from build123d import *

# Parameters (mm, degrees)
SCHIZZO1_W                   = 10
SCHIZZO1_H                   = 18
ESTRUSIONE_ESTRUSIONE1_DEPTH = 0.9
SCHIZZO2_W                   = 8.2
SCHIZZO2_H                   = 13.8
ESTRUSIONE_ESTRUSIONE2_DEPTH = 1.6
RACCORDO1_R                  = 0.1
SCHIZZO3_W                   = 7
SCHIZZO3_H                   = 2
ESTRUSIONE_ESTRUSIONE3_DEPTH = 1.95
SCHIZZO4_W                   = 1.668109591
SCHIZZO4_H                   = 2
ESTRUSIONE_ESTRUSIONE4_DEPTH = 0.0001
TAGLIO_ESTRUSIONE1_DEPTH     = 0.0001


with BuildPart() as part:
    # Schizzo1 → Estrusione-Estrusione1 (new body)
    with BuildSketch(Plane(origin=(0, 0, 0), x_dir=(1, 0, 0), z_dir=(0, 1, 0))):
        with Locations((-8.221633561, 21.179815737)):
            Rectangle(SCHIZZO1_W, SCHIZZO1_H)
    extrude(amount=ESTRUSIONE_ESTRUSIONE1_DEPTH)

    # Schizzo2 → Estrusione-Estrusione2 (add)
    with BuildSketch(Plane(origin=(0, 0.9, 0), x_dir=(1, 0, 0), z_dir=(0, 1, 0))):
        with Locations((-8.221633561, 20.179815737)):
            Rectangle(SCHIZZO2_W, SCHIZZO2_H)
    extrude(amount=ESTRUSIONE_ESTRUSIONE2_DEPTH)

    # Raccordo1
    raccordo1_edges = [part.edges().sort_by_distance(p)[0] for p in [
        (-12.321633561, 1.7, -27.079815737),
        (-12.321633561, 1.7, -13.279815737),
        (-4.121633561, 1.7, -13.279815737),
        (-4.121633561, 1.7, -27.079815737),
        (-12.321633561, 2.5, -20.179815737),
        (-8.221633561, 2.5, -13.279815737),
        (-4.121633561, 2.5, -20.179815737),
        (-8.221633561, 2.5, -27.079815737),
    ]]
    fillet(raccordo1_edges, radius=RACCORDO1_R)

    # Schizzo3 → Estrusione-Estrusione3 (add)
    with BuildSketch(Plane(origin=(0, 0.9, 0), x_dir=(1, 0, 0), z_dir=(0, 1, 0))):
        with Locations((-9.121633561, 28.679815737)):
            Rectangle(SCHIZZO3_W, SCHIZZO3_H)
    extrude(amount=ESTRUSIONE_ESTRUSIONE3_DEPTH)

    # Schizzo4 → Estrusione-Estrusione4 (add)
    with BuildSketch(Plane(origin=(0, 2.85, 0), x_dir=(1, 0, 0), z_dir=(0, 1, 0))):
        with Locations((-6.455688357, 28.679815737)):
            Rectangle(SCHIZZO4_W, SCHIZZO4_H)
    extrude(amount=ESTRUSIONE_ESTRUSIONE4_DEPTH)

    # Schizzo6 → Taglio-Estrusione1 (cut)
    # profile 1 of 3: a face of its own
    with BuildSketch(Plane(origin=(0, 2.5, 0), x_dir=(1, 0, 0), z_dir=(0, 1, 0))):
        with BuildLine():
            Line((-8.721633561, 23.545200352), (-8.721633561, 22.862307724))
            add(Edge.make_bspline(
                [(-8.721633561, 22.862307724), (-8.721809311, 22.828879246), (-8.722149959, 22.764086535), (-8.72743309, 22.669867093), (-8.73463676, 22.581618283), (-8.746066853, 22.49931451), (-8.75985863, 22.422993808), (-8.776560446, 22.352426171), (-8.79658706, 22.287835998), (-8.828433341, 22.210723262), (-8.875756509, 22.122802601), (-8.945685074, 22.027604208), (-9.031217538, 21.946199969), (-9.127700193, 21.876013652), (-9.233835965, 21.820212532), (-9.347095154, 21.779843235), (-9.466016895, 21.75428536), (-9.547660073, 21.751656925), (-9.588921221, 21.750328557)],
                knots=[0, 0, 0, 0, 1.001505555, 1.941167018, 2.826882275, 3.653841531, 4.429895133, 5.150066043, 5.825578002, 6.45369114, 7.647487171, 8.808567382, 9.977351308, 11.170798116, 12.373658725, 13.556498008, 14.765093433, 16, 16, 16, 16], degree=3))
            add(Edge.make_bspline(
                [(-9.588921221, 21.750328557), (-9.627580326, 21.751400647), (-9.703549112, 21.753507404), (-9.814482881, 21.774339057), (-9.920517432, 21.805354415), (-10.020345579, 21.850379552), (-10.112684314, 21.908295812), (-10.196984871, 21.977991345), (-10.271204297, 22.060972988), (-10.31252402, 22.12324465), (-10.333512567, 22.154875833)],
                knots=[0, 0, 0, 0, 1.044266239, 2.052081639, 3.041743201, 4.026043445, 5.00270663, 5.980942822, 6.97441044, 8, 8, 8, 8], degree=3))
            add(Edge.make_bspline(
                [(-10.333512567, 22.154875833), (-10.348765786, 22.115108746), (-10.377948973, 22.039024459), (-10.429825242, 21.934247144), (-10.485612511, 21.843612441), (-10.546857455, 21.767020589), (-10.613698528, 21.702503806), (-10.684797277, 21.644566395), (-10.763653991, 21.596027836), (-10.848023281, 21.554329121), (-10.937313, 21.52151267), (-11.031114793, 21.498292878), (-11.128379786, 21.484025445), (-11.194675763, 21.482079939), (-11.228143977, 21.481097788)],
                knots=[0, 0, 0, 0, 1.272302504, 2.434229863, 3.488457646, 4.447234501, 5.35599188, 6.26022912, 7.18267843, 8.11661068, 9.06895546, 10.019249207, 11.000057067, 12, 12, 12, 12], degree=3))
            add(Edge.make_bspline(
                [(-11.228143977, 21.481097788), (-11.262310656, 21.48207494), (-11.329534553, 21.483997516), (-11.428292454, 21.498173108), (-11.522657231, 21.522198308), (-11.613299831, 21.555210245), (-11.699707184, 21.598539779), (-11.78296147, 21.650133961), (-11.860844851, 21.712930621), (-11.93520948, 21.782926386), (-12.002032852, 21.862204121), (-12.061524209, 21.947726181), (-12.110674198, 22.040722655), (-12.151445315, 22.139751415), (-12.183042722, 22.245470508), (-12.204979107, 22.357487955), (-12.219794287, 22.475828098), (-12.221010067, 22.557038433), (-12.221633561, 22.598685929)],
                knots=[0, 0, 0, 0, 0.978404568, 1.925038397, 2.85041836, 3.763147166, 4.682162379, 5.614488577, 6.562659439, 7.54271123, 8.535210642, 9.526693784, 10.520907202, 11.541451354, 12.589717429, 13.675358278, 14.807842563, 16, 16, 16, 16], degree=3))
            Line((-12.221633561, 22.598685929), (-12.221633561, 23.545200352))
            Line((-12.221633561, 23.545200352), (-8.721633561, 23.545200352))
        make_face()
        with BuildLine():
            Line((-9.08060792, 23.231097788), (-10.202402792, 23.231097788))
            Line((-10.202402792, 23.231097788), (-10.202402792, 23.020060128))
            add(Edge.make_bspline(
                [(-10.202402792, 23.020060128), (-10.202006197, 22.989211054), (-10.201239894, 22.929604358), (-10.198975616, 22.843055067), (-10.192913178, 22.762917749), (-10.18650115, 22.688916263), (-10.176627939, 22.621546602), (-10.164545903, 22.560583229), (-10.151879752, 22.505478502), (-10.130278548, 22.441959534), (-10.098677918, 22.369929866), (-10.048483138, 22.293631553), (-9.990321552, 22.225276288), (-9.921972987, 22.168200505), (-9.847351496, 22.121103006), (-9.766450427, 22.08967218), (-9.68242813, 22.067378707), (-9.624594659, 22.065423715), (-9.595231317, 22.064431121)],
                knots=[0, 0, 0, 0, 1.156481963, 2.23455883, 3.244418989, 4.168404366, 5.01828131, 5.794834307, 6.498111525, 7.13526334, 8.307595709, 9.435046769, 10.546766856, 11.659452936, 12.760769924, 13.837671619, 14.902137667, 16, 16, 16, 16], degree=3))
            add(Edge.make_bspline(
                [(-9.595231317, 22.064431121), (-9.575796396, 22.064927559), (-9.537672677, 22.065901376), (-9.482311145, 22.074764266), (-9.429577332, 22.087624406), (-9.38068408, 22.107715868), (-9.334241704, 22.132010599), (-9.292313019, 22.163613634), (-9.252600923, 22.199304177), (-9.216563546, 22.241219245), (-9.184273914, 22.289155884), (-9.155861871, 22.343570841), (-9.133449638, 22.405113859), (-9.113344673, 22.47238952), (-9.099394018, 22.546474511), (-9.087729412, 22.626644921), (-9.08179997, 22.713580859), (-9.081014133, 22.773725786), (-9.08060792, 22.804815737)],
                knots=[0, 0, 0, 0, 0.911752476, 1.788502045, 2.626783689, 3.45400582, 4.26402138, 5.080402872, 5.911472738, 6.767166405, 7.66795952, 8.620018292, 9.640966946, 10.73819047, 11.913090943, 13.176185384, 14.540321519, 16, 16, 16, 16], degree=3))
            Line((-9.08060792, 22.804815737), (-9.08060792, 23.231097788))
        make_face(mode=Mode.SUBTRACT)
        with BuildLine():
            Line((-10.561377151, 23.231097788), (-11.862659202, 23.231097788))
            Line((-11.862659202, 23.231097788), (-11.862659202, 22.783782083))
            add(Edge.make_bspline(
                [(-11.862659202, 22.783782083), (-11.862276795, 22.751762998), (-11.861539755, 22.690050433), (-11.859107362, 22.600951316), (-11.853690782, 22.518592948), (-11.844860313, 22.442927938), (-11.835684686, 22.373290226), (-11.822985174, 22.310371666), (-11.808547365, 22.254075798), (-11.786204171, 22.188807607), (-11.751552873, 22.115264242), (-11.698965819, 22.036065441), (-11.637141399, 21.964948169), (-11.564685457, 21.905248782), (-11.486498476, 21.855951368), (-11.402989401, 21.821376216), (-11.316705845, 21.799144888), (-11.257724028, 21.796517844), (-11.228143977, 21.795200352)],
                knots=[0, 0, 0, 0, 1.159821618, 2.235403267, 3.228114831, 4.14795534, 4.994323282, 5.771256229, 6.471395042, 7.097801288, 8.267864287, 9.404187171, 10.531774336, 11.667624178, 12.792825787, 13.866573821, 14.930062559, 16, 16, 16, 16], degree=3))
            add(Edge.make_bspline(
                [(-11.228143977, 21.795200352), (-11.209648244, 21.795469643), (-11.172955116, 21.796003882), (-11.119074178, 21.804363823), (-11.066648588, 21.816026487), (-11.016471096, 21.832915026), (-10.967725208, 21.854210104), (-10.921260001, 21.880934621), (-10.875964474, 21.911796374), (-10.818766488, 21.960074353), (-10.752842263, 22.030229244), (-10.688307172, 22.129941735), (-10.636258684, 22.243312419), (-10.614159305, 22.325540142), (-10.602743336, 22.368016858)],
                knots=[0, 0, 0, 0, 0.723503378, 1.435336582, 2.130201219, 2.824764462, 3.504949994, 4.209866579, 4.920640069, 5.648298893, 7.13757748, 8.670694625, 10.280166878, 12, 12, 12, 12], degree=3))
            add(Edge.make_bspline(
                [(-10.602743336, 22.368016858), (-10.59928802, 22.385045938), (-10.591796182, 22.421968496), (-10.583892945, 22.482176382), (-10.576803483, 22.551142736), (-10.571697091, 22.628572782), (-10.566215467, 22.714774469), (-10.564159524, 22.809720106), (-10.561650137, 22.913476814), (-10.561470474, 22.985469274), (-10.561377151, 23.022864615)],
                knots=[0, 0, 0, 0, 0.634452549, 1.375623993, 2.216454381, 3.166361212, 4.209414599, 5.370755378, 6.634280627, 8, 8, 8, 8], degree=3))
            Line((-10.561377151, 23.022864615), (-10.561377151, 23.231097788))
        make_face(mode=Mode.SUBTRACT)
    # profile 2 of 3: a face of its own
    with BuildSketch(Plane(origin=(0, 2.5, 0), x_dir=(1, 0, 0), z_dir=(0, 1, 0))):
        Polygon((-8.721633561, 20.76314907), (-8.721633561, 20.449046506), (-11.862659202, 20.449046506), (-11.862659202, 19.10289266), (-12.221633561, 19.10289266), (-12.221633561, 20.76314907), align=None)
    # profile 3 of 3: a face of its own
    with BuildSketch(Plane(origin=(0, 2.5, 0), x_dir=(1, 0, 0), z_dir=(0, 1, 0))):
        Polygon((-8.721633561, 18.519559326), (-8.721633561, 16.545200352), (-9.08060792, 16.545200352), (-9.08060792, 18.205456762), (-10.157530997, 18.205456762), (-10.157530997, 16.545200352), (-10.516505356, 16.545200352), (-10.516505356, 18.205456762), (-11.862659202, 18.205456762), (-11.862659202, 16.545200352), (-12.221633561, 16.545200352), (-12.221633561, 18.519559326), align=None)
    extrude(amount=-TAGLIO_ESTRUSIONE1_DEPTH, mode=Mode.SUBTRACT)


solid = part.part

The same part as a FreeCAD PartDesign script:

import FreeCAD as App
import Part
import Sketcher

V = App.Vector
Q = App.Units.Quantity


def edges_at(feature, points):
    """Names of the edges that pass closest to the given points."""
    edges = feature.Shape.Edges
    near = lambda p: min(range(len(edges)), key=lambda i: edges[i].distToShape(Part.Vertex(*p))[0])
    return sorted({f"Edge{near(p) + 1}" for p in points})

doc = App.newDocument("Part")
body = doc.addObject("PartDesign::Body", "Body")

# Sketch on XZ plane
sketch1 = doc.addObject("Sketcher::SketchObject", "Sketch")
body.addObject(sketch1)
sketch1.AttachmentSupport = (doc.XZ_Plane, [""])
sketch1.MapMode = "FlatFace"
sketch1.addGeometry([
    Part.LineSegment(V(-13, -30, 0), V(-13, -12, 0)),
    Part.LineSegment(V(-13, -12, 0), V(-3, -12, 0)),
    Part.LineSegment(V(-3, -12, 0), V(-3, -30, 0)),
    Part.LineSegment(V(-3, -30, 0), V(-13, -30, 0)),
], False)
sketch1.addConstraint([
    Sketcher.Constraint("Coincident", 0, 2, 1, 1),
    Sketcher.Constraint("Coincident", 1, 2, 2, 1),
    Sketcher.Constraint("Coincident", 2, 2, 3, 1),
    Sketcher.Constraint("Coincident", 3, 2, 0, 1),
    Sketcher.Constraint("Vertical", 0),
    Sketcher.Constraint("Horizontal", 1),
    Sketcher.Constraint("Vertical", 2),
    Sketcher.Constraint("Horizontal", 3),
    Sketcher.Constraint("DistanceX", 1, 1, 1, 2, Q("10 mm")),
    Sketcher.Constraint("DistanceY", 0, 1, 0, 2, Q("18 mm")),
    Sketcher.Constraint("DistanceX", 0, 2, -1, 1, Q("13.221634 mm")),
    Sketcher.Constraint("DistanceY", 0, 2, -1, 1, Q("12.179816 mm")),
])
pad1 = doc.addObject("PartDesign::Pad", "Pad")
body.addObject(pad1)
pad1.Profile = sketch1
pad1.Length = 0.9
pad1.Reversed = True

# Sketch on XZ plane
sketch2 = doc.addObject("Sketcher::SketchObject", "Sketch001")
body.addObject(sketch2)
sketch2.AttachmentSupport = (doc.XZ_Plane, [""])
sketch2.MapMode = "FlatFace"
sketch2.AttachmentOffset = App.Placement(V(0, 0, -0.9), App.Rotation())
sketch2.addGeometry([
    Part.LineSegment(V(-12, -27, 0), V(-12, -13, 0)),
    Part.LineSegment(V(-12, -13, 0), V(-4, -13, 0)),
    Part.LineSegment(V(-4, -13, 0), V(-4, -27, 0)),
    Part.LineSegment(V(-4, -27, 0), V(-12, -27, 0)),
], False)
sketch2.addConstraint([
    Sketcher.Constraint("Coincident", 0, 2, 1, 1),
    Sketcher.Constraint("Coincident", 1, 2, 2, 1),
    Sketcher.Constraint("Coincident", 2, 2, 3, 1),
    Sketcher.Constraint("Coincident", 3, 2, 0, 1),
    Sketcher.Constraint("Vertical", 0),
    Sketcher.Constraint("Horizontal", 1),
    Sketcher.Constraint("Vertical", 2),
    Sketcher.Constraint("Horizontal", 3),
    Sketcher.Constraint("DistanceX", 1, 1, 1, 2, Q("8.2 mm")),
    Sketcher.Constraint("DistanceY", 0, 1, 0, 2, Q("13.8 mm")),
    Sketcher.Constraint("DistanceX", 0, 2, -1, 1, Q("12.321634 mm")),
    Sketcher.Constraint("DistanceY", 0, 2, -1, 1, Q("13.279816 mm")),
])
pad2 = doc.addObject("PartDesign::Pad", "Pad001")
body.addObject(pad2)
pad2.Profile = sketch2
pad2.Length = 1.6
pad2.Reversed = True
doc.recompute()

fillet = doc.addObject("PartDesign::Fillet", "Fillet")
body.addObject(fillet)
fillet.Base = (pad2, edges_at(pad2, [
    (-12.322, 1.7, -27.08),
    (-12.322, 1.7, -13.28),
    (-4.122, 1.7, -13.28),
    (-4.122, 1.7, -27.08),
    (-12.322, 2.5, -20.18),
    (-8.222, 2.5, -13.28),
    (-4.122, 2.5, -20.18),
    (-8.222, 2.5, -27.08),
]))
fillet.Radius = 0.1

# Sketch on XZ plane
sketch3 = doc.addObject("Sketcher::SketchObject", "Sketch002")
body.addObject(sketch3)
sketch3.AttachmentSupport = (doc.XZ_Plane, [""])
sketch3.MapMode = "FlatFace"
sketch3.AttachmentOffset = App.Placement(V(0, 0, -0.9), App.Rotation())
sketch3.addGeometry([
    Part.LineSegment(V(-12.6, -29.7, 0), V(-12.6, -27.7, 0)),
    Part.LineSegment(V(-12.6, -27.7, 0), V(-5.6, -27.7, 0)),
    Part.LineSegment(V(-5.6, -27.7, 0), V(-5.6, -29.7, 0)),
    Part.LineSegment(V(-5.6, -29.7, 0), V(-12.6, -29.7, 0)),
], False)
sketch3.addConstraint([
    Sketcher.Constraint("Coincident", 0, 2, 1, 1),
    Sketcher.Constraint("Coincident", 1, 2, 2, 1),
    Sketcher.Constraint("Coincident", 2, 2, 3, 1),
    Sketcher.Constraint("Coincident", 3, 2, 0, 1),
    Sketcher.Constraint("Vertical", 0),
    Sketcher.Constraint("Horizontal", 1),
    Sketcher.Constraint("Vertical", 2),
    Sketcher.Constraint("Horizontal", 3),
    Sketcher.Constraint("DistanceX", 1, 1, 1, 2, Q("7 mm")),
    Sketcher.Constraint("DistanceY", 0, 1, 0, 2, Q("2 mm")),
    Sketcher.Constraint("DistanceX", 0, 2, -1, 1, Q("12.621634 mm")),
    Sketcher.Constraint("DistanceY", 0, 2, -1, 1, Q("27.679816 mm")),
])
pad3 = doc.addObject("PartDesign::Pad", "Pad002")
body.addObject(pad3)
pad3.Profile = sketch3
pad3.Length = 1.95
pad3.Reversed = True

# Sketch on XZ plane
sketch4 = doc.addObject("Sketcher::SketchObject", "Sketch003")
body.addObject(sketch4)
sketch4.AttachmentSupport = (doc.XZ_Plane, [""])
sketch4.MapMode = "FlatFace"
sketch4.AttachmentOffset = App.Placement(V(0, 0, -2.85), App.Rotation())
sketch4.addGeometry([
    Part.LineSegment(V(-7.3, -29.7, 0), V(-7.3, -27.7, 0)),
    Part.LineSegment(V(-7.3, -27.7, 0), V(-5.6, -27.7, 0)),
    Part.LineSegment(V(-5.6, -27.7, 0), V(-5.6, -29.7, 0)),
    Part.LineSegment(V(-5.6, -29.7, 0), V(-7.3, -29.7, 0)),
], False)
sketch4.addConstraint([
    Sketcher.Constraint("Coincident", 0, 2, 1, 1),
    Sketcher.Constraint("Coincident", 1, 2, 2, 1),
    Sketcher.Constraint("Coincident", 2, 2, 3, 1),
    Sketcher.Constraint("Coincident", 3, 2, 0, 1),
    Sketcher.Constraint("Vertical", 0),
    Sketcher.Constraint("Horizontal", 1),
    Sketcher.Constraint("Vertical", 2),
    Sketcher.Constraint("Horizontal", 3),
    Sketcher.Constraint("DistanceY", 0, 1, 0, 2, Q("2 mm")),
    Sketcher.Constraint("DistanceX", 1, 1, 1, 2, Q("1.66811 mm")),
    Sketcher.Constraint("DistanceX", 0, 2, -1, 1, Q("7.289743 mm")),
    Sketcher.Constraint("DistanceY", 0, 2, -1, 1, Q("27.679816 mm")),
])
pad4 = doc.addObject("PartDesign::Pad", "Pad003")
body.addObject(pad4)
pad4.Profile = sketch4
pad4.Length = 0.0001
pad4.Reversed = True

# Sketch on XZ plane
sketch5 = doc.addObject("Sketcher::SketchObject", "Sketch004")
body.addObject(sketch5)
sketch5.AttachmentSupport = (doc.XZ_Plane, [""])
sketch5.MapMode = "FlatFace"
sketch5.AttachmentOffset = App.Placement(V(0, 0, -2.5), App.Rotation())
sketch5.addGeometry([
    Part.LineSegment(V(-8.721634, -22.862308, 0), V(-8.721634, -23.5452, 0)),  # 0
    Part.LineSegment(V(-8.721634, -23.5452, 0), V(-12.221634, -23.5452, 0)),  # 1
    Part.LineSegment(V(-12.221634, -23.5452, 0), V(-12.221634, -22.598686, 0)),  # 2
    Part.BSplineCurve([V(-11.228144, -21.481098, 0), V(-11.262311, -21.482075, 0), V(-11.329535, -21.483998, 0), V(-11.428292, -21.498173, 0), V(-11.522657, -21.522198, 0), V(-11.6133, -21.55521, 0), V(-11.699707, -21.59854, 0), V(-11.782961, -21.650134, 0), V(-11.860845, -21.712931, 0), V(-11.935209, -21.782926, 0), V(-12.002033, -21.862204, 0), V(-12.061524, -21.947726, 0), V(-12.110674, -22.040723, 0), V(-12.151445, -22.139751, 0), V(-12.183043, -22.245471, 0), V(-12.204979, -22.357488, 0), V(-12.219794, -22.475828, 0), V(-12.22101, -22.557038, 0), V(-12.221634, -22.598686, 0)], [4, 1, 1, 1, 1, 1, 1, 1, 1, 1, 1, 1, 1, 1, 1, 1, 4], [0, 0.978404568, 1.925038397, 2.85041836, 3.763147166, 4.682162379, 5.614488577, 6.562659439, 7.54271123, 8.535210642, 9.526693784, 10.520907202, 11.541451354, 12.589717429, 13.675358278, 14.807842563, 16], False, 3, [1, 1, 1, 1, 1, 1, 1, 1, 1, 1, 1, 1, 1, 1, 1, 1, 1, 1, 1], False),  # 3
    Part.BSplineCurve([V(-10.333513, -22.154876, 0), V(-10.348766, -22.115109, 0), V(-10.377949, -22.039024, 0), V(-10.429825, -21.934247, 0), V(-10.485613, -21.843612, 0), V(-10.546857, -21.767021, 0), V(-10.613699, -21.702504, 0), V(-10.684797, -21.644566, 0), V(-10.763654, -21.596028, 0), V(-10.848023, -21.554329, 0), V(-10.937313, -21.521513, 0), V(-11.031115, -21.498293, 0), V(-11.12838, -21.484025, 0), V(-11.194676, -21.48208, 0), V(-11.228144, -21.481098, 0)], [4, 1, 1, 1, 1, 1, 1, 1, 1, 1, 1, 1, 4], [0, 1.272302504, 2.434229863, 3.488457646, 4.447234501, 5.35599188, 6.26022912, 7.18267843, 8.11661068, 9.06895546, 10.019249207, 11.000057067, 12], False, 3, [1, 1, 1, 1, 1, 1, 1, 1, 1, 1, 1, 1, 1, 1, 1], False),  # 4
    Part.BSplineCurve([V(-9.588921, -21.750329, 0), V(-9.62758, -21.751401, 0), V(-9.703549, -21.753507, 0), V(-9.814483, -21.774339, 0), V(-9.920517, -21.805354, 0), V(-10.020346, -21.85038, 0), V(-10.112684, -21.908296, 0), V(-10.196985, -21.977991, 0), V(-10.271204, -22.060973, 0), V(-10.312524, -22.123245, 0), V(-10.333513, -22.154876, 0)], [4, 1, 1, 1, 1, 1, 1, 1, 4], [0, 1.044266239, 2.052081639, 3.041743201, 4.026043445, 5.00270663, 5.980942822, 6.97441044, 8], False, 3, [1, 1, 1, 1, 1, 1, 1, 1, 1, 1, 1], False),  # 5
    Part.BSplineCurve([V(-8.721634, -22.862308, 0), V(-8.721809, -22.828879, 0), V(-8.72215, -22.764087, 0), V(-8.727433, -22.669867, 0), V(-8.734637, -22.581618, 0), V(-8.746067, -22.499315, 0), V(-8.759859, -22.422994, 0), V(-8.77656, -22.352426, 0), V(-8.796587, -22.287836, 0), V(-8.828433, -22.210723, 0), V(-8.875757, -22.122803, 0), V(-8.945685, -22.027604, 0), V(-9.031218, -21.9462, 0), V(-9.1277, -21.876014, 0), V(-9.233836, -21.820213, 0), V(-9.347095, -21.779843, 0), V(-9.466017, -21.754285, 0), V(-9.54766, -21.751657, 0), V(-9.588921, -21.750329, 0)], [4, 1, 1, 1, 1, 1, 1, 1, 1, 1, 1, 1, 1, 1, 1, 1, 4], [0, 1.001505555, 1.941167018, 2.826882275, 3.653841531, 4.429895133, 5.150066043, 5.825578002, 6.45369114, 7.647487171, 8.808567382, 9.977351308, 11.170798116, 12.373658725, 13.556498008, 14.765093433, 16], False, 3, [1, 1, 1, 1, 1, 1, 1, 1, 1, 1, 1, 1, 1, 1, 1, 1, 1, 1, 1], False),  # 6
    Part.LineSegment(V(-9.080608, -23.231098, 0), V(-9.080608, -22.804816, 0)),  # 7
    Part.BSplineCurve([V(-9.595231, -22.064431, 0), V(-9.575796, -22.064928, 0), V(-9.537673, -22.065901, 0), V(-9.482311, -22.074764, 0), V(-9.429577, -22.087624, 0), V(-9.380684, -22.107716, 0), V(-9.334242, -22.132011, 0), V(-9.292313, -22.163614, 0), V(-9.252601, -22.199304, 0), V(-9.216564, -22.241219, 0), V(-9.184274, -22.289156, 0), V(-9.155862, -22.343571, 0), V(-9.13345, -22.405114, 0), V(-9.113345, -22.47239, 0), V(-9.099394, -22.546475, 0), V(-9.087729, -22.626645, 0), V(-9.0818, -22.713581, 0), V(-9.081014, -22.773726, 0), V(-9.080608, -22.804816, 0)], [4, 1, 1, 1, 1, 1, 1, 1, 1, 1, 1, 1, 1, 1, 1, 1, 4], [0, 0.911752476, 1.788502045, 2.626783689, 3.45400582, 4.26402138, 5.080402872, 5.911472738, 6.767166405, 7.66795952, 8.620018292, 9.640966946, 10.73819047, 11.913090943, 13.176185384, 14.540321519, 16], False, 3, [1, 1, 1, 1, 1, 1, 1, 1, 1, 1, 1, 1, 1, 1, 1, 1, 1, 1, 1], False),  # 8
    Part.BSplineCurve([V(-10.202403, -23.02006, 0), V(-10.202006, -22.989211, 0), V(-10.20124, -22.929604, 0), V(-10.198976, -22.843055, 0), V(-10.192913, -22.762918, 0), V(-10.186501, -22.688916, 0), V(-10.176628, -22.621547, 0), V(-10.164546, -22.560583, 0), V(-10.15188, -22.505479, 0), V(-10.130279, -22.44196, 0), V(-10.098678, -22.36993, 0), V(-10.048483, -22.293632, 0), V(-9.990322, -22.225276, 0), V(-9.921973, -22.168201, 0), V(-9.847351, -22.121103, 0), V(-9.76645, -22.089672, 0), V(-9.682428, -22.067379, 0), V(-9.624595, -22.065424, 0), V(-9.595231, -22.064431, 0)], [4, 1, 1, 1, 1, 1, 1, 1, 1, 1, 1, 1, 1, 1, 1, 1, 4], [0, 1.156481963, 2.23455883, 3.244418989, 4.168404366, 5.01828131, 5.794834307, 6.498111525, 7.13526334, 8.307595709, 9.435046769, 10.546766856, 11.659452936, 12.760769924, 13.837671619, 14.902137667, 16], False, 3, [1, 1, 1, 1, 1, 1, 1, 1, 1, 1, 1, 1, 1, 1, 1, 1, 1, 1, 1], False),  # 9
    Part.LineSegment(V(-10.202403, -23.02006, 0), V(-10.202403, -23.231098, 0)),  # 10
    Part.LineSegment(V(-10.202403, -23.231098, 0), V(-9.080608, -23.231098, 0)),  # 11
    Part.LineSegment(V(-10.561377, -23.231098, 0), V(-10.561377, -23.022865, 0)),  # 12
    Part.BSplineCurve([V(-10.602743, -22.368017, 0), V(-10.599288, -22.385046, 0), V(-10.591796, -22.421968, 0), V(-10.583893, -22.482176, 0), V(-10.576803, -22.551143, 0), V(-10.571697, -22.628573, 0), V(-10.566215, -22.714774, 0), V(-10.56416, -22.80972, 0), V(-10.56165, -22.913477, 0), V(-10.56147, -22.985469, 0), V(-10.561377, -23.022865, 0)], [4, 1, 1, 1, 1, 1, 1, 1, 4], [0, 0.634452549, 1.375623993, 2.216454381, 3.166361212, 4.209414599, 5.370755378, 6.634280627, 8], False, 3, [1, 1, 1, 1, 1, 1, 1, 1, 1, 1, 1], False),  # 13
    Part.BSplineCurve([V(-11.228144, -21.7952, 0), V(-11.209648, -21.79547, 0), V(-11.172955, -21.796004, 0), V(-11.119074, -21.804364, 0), V(-11.066649, -21.816026, 0), V(-11.016471, -21.832915, 0), V(-10.967725, -21.85421, 0), V(-10.92126, -21.880935, 0), V(-10.875964, -21.911796, 0), V(-10.818766, -21.960074, 0), V(-10.752842, -22.030229, 0), V(-10.688307, -22.129942, 0), V(-10.636259, -22.243312, 0), V(-10.614159, -22.32554, 0), V(-10.602743, -22.368017, 0)], [4, 1, 1, 1, 1, 1, 1, 1, 1, 1, 1, 1, 4], [0, 0.723503378, 1.435336582, 2.130201219, 2.824764462, 3.504949994, 4.209866579, 4.920640069, 5.648298893, 7.13757748, 8.670694625, 10.280166878, 12], False, 3, [1, 1, 1, 1, 1, 1, 1, 1, 1, 1, 1, 1, 1, 1, 1], False),  # 14
    Part.BSplineCurve([V(-11.862659, -22.783782, 0), V(-11.862277, -22.751763, 0), V(-11.86154, -22.69005, 0), V(-11.859107, -22.600951, 0), V(-11.853691, -22.518593, 0), V(-11.84486, -22.442928, 0), V(-11.835685, -22.37329, 0), V(-11.822985, -22.310372, 0), V(-11.808547, -22.254076, 0), V(-11.786204, -22.188808, 0), V(-11.751553, -22.115264, 0), V(-11.698966, -22.036065, 0), V(-11.637141, -21.964948, 0), V(-11.564685, -21.905249, 0), V(-11.486498, -21.855951, 0), V(-11.402989, -21.821376, 0), V(-11.316706, -21.799145, 0), V(-11.257724, -21.796518, 0), V(-11.228144, -21.7952, 0)], [4, 1, 1, 1, 1, 1, 1, 1, 1, 1, 1, 1, 1, 1, 1, 1, 4], [0, 1.159821618, 2.235403267, 3.228114831, 4.14795534, 4.994323282, 5.771256229, 6.471395042, 7.097801288, 8.267864287, 9.404187171, 10.531774336, 11.667624178, 12.792825787, 13.866573821, 14.930062559, 16], False, 3, [1, 1, 1, 1, 1, 1, 1, 1, 1, 1, 1, 1, 1, 1, 1, 1, 1, 1, 1], False),  # 15
    Part.LineSegment(V(-11.862659, -22.783782, 0), V(-11.862659, -23.231098, 0)),  # 16
    Part.LineSegment(V(-11.862659, -23.231098, 0), V(-10.561377, -23.231098, 0)),  # 17
    Part.LineSegment(V(-8.721634, -20.449047, 0), V(-8.721634, -20.763149, 0)),  # 18
    Part.LineSegment(V(-8.721634, -20.763149, 0), V(-12.221634, -20.763149, 0)),  # 19
    Part.LineSegment(V(-12.221634, -20.763149, 0), V(-12.221634, -19.102893, 0)),  # 20
    Part.LineSegment(V(-12.221634, -19.102893, 0), V(-11.862659, -19.102893, 0)),  # 21
    Part.LineSegment(V(-11.862659, -19.102893, 0), V(-11.862659, -20.449047, 0)),  # 22
    Part.LineSegment(V(-11.862659, -20.449047, 0), V(-8.721634, -20.449047, 0)),  # 23
    Part.LineSegment(V(-8.721634, -16.5452, 0), V(-8.721634, -18.519559, 0)),  # 24
    Part.LineSegment(V(-8.721634, -18.519559, 0), V(-12.221634, -18.519559, 0)),  # 25
    Part.LineSegment(V(-12.221634, -18.519559, 0), V(-12.221634, -16.5452, 0)),  # 26
    Part.LineSegment(V(-12.221634, -16.5452, 0), V(-11.862659, -16.5452, 0)),  # 27
    Part.LineSegment(V(-11.862659, -16.5452, 0), V(-11.862659, -18.205457, 0)),  # 28
    Part.LineSegment(V(-11.862659, -18.205457, 0), V(-10.516505, -18.205457, 0)),  # 29
    Part.LineSegment(V(-10.516505, -18.205457, 0), V(-10.516505, -16.5452, 0)),  # 30
    Part.LineSegment(V(-10.516505, -16.5452, 0), V(-10.157531, -16.5452, 0)),  # 31
    Part.LineSegment(V(-10.157531, -16.5452, 0), V(-10.157531, -18.205457, 0)),  # 32
    Part.LineSegment(V(-10.157531, -18.205457, 0), V(-9.080608, -18.205457, 0)),  # 33
    Part.LineSegment(V(-9.080608, -18.205457, 0), V(-9.080608, -16.5452, 0)),  # 34
    Part.LineSegment(V(-9.080608, -16.5452, 0), V(-8.721634, -16.5452, 0)),  # 35
], False)
sketch5.addConstraint([
    Sketcher.Constraint("Block", 3),
    Sketcher.Constraint("Block", 4),
    Sketcher.Constraint("Block", 5),
    Sketcher.Constraint("Block", 6),
    Sketcher.Constraint("Block", 8),
    Sketcher.Constraint("Block", 9),
    Sketcher.Constraint("Block", 13),
    Sketcher.Constraint("Block", 14),
    Sketcher.Constraint("Block", 15),
    Sketcher.Constraint("Coincident", 0, 2, 1, 1),
    Sketcher.Constraint("Coincident", 1, 2, 2, 1),
    Sketcher.Constraint("Coincident", 2, 2, 3, 2),
    Sketcher.Constraint("Coincident", 6, 1, 0, 1),
    Sketcher.Constraint("Coincident", 7, 2, 8, 2),
    Sketcher.Constraint("Coincident", 9, 1, 10, 1),
    Sketcher.Constraint("Coincident", 10, 2, 11, 1),
    Sketcher.Constraint("Coincident", 11, 2, 7, 1),
    Sketcher.Constraint("Coincident", 12, 2, 13, 2),
    Sketcher.Constraint("Coincident", 15, 1, 16, 1),
    Sketcher.Constraint("Coincident", 16, 2, 17, 1),
    Sketcher.Constraint("Coincident", 17, 2, 12, 1),
    Sketcher.Constraint("Coincident", 18, 2, 19, 1),
    Sketcher.Constraint("Coincident", 19, 2, 20, 1),
    Sketcher.Constraint("Coincident", 20, 2, 21, 1),
    Sketcher.Constraint("Coincident", 21, 2, 22, 1),
    Sketcher.Constraint("Coincident", 22, 2, 23, 1),
    Sketcher.Constraint("Coincident", 23, 2, 18, 1),
    Sketcher.Constraint("Coincident", 24, 2, 25, 1),
    Sketcher.Constraint("Coincident", 25, 2, 26, 1),
    Sketcher.Constraint("Coincident", 26, 2, 27, 1),
    Sketcher.Constraint("Coincident", 27, 2, 28, 1),
    Sketcher.Constraint("Coincident", 28, 2, 29, 1),
    Sketcher.Constraint("Coincident", 29, 2, 30, 1),
    Sketcher.Constraint("Coincident", 30, 2, 31, 1),
    Sketcher.Constraint("Coincident", 31, 2, 32, 1),
    Sketcher.Constraint("Coincident", 32, 2, 33, 1),
    Sketcher.Constraint("Coincident", 33, 2, 34, 1),
    Sketcher.Constraint("Coincident", 34, 2, 35, 1),
    Sketcher.Constraint("Coincident", 35, 2, 24, 1),
    Sketcher.Constraint("Vertical", 0),
    Sketcher.Constraint("Horizontal", 1),
    Sketcher.Constraint("Vertical", 2),
    Sketcher.Constraint("Vertical", 7),
    Sketcher.Constraint("Vertical", 10),
    Sketcher.Constraint("Horizontal", 11),
    Sketcher.Constraint("Vertical", 12),
    Sketcher.Constraint("Vertical", 16),
    Sketcher.Constraint("Horizontal", 17),
    Sketcher.Constraint("Vertical", 18),
    Sketcher.Constraint("Horizontal", 19),
    Sketcher.Constraint("Vertical", 20),
    Sketcher.Constraint("Horizontal", 21),
    Sketcher.Constraint("Vertical", 22),
    Sketcher.Constraint("Horizontal", 23),
    Sketcher.Constraint("Vertical", 24),
    Sketcher.Constraint("Horizontal", 25),
    Sketcher.Constraint("Vertical", 26),
    Sketcher.Constraint("Horizontal", 27),
    Sketcher.Constraint("Vertical", 28),
    Sketcher.Constraint("Horizontal", 29),
    Sketcher.Constraint("Vertical", 30),
    Sketcher.Constraint("Horizontal", 31),
    Sketcher.Constraint("Vertical", 32),
    Sketcher.Constraint("Horizontal", 33),
    Sketcher.Constraint("Vertical", 34),
    Sketcher.Constraint("Horizontal", 35),
    Sketcher.Constraint("Horizontal", 11, 2, 16, 2),
    Sketcher.Constraint("Horizontal", 27, 2, 30, 2),
    Sketcher.Constraint("Horizontal", 29, 2, 32, 2),
    Sketcher.Constraint("Horizontal", 31, 2, 34, 2),
    Sketcher.Constraint("Vertical", 0, 2, 18, 2),
    Sketcher.Constraint("Vertical", 2, 2, 19, 2),
    Sketcher.Constraint("Vertical", 16, 2, 21, 2),
    Sketcher.Constraint("Vertical", 23, 2, 24, 2),
    Sketcher.Constraint("Vertical", 20, 2, 25, 2),
    Sketcher.Constraint("Vertical", 22, 2, 27, 2),
    Sketcher.Constraint("Vertical", 11, 2, 33, 2),
    Sketcher.Constraint("Equal", 27, 31),
    Sketcher.Constraint("Equal", 29, 22),
    Sketcher.Constraint("Equal", 20, 28),
    Sketcher.Constraint("DistanceY", 24, 2, 24, 1, Q("1.974359 mm")),
    Sketcher.Constraint("DistanceY", 0, 2, -1, 1, Q("23.5452 mm")),
    Sketcher.Constraint("DistanceY", 26, 2, -1, 1, Q("16.5452 mm")),
    Sketcher.Constraint("DistanceX", 29, 1, 29, 2, Q("1.346154 mm")),
    Sketcher.Constraint("DistanceY", 7, 1, 7, 2, Q("0.426282 mm")),
    Sketcher.Constraint("DistanceY", 18, 2, 18, 1, Q("0.314103 mm")),
    Sketcher.Constraint("DistanceY", 18, 2, -1, 1, Q("20.763149 mm")),
])
pocket1 = doc.addObject("PartDesign::Pocket", "Pocket")
body.addObject(pocket1)
pocket1.Profile = sketch5
pocket1.Length = 0.0001
pocket1.Reversed = True

doc.recompute()
